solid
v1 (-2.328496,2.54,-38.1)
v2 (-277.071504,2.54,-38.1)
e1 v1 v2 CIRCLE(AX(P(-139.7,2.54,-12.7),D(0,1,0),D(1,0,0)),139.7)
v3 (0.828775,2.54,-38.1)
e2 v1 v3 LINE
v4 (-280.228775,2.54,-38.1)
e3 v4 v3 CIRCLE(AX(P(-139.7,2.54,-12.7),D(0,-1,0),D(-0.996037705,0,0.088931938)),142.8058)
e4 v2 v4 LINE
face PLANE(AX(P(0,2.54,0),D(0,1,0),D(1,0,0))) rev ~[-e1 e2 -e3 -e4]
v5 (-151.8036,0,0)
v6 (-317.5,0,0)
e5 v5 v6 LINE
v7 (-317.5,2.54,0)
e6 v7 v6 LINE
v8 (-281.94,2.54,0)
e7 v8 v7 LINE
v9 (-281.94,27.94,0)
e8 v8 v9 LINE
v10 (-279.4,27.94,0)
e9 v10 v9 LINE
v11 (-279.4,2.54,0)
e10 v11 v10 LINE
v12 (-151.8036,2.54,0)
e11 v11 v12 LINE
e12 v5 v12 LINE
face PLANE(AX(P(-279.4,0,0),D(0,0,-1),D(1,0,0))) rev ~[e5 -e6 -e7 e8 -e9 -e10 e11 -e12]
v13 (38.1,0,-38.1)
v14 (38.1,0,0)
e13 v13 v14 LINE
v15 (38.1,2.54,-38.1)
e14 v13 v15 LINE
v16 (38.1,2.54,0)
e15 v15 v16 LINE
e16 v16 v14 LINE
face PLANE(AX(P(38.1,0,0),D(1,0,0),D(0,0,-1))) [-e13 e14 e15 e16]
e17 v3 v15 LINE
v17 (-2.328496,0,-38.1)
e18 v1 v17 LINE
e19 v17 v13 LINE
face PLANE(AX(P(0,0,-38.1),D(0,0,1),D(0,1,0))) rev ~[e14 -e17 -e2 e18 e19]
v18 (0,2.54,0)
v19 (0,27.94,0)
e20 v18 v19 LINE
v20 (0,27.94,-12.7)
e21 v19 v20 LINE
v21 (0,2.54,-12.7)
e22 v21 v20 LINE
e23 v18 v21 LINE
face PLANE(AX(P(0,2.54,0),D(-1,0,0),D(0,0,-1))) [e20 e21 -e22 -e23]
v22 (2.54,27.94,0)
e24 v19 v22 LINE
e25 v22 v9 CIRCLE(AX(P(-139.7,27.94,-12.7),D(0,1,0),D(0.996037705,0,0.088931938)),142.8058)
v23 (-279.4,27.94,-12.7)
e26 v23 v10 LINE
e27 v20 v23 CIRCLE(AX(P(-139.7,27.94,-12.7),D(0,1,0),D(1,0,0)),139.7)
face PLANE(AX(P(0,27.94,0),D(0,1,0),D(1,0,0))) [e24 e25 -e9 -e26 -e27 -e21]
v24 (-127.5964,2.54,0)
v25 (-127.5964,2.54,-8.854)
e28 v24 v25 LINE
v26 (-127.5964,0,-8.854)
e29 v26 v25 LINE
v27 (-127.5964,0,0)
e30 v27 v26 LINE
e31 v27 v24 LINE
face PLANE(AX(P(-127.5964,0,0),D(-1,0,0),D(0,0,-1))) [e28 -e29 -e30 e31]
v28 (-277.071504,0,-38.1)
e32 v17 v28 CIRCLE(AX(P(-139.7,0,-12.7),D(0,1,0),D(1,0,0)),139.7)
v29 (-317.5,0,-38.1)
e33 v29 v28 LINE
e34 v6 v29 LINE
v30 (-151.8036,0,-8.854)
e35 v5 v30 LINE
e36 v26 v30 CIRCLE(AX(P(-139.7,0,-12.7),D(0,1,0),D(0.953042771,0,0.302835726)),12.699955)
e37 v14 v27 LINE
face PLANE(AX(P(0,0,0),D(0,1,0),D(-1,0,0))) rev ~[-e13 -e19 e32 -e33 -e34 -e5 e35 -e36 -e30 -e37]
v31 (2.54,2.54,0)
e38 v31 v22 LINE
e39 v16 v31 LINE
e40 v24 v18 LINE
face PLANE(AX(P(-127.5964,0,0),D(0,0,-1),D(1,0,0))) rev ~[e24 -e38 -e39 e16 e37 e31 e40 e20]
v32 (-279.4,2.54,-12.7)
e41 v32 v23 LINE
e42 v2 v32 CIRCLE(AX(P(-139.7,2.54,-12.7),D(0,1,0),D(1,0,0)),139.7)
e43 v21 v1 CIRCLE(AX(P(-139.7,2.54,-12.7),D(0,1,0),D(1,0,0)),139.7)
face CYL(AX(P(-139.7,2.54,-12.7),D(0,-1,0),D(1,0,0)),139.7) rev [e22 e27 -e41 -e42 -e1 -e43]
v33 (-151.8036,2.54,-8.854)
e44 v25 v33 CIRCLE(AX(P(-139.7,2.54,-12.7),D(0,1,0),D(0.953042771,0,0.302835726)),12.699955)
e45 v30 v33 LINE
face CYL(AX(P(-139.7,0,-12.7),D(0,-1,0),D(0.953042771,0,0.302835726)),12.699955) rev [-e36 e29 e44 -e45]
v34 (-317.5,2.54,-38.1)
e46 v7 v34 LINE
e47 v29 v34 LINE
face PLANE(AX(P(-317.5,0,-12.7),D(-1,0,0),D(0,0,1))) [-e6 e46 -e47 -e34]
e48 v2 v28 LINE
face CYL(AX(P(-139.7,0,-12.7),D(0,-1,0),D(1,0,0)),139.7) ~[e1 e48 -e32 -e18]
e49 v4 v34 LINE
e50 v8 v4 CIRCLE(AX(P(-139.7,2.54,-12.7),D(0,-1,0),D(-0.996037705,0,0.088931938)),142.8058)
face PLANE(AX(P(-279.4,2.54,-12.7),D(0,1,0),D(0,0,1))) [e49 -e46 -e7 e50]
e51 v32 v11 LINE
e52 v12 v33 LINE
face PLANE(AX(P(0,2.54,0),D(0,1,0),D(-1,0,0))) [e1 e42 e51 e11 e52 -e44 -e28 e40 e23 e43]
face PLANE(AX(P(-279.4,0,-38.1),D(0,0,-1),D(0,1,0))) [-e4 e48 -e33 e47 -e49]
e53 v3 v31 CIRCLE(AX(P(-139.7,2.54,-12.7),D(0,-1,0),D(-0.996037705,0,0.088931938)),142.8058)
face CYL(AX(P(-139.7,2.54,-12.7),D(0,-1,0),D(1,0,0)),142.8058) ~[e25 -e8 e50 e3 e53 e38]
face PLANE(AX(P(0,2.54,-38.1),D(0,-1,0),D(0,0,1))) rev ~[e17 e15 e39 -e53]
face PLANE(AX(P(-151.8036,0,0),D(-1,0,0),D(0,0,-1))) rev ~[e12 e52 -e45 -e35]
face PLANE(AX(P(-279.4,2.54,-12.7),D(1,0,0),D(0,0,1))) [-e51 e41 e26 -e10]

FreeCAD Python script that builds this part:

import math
import FreeCAD as App
import Part
import Sketcher
from FreeCAD import Vector
Q = App.Units.Quantity


def add_polygon(sketch, points):
    """Adds a closed chain of lines whose ends are joined by coincident constraints."""
    first, n = sketch.GeometryCount, len(points)
    for a, b in zip(points, points[1:] + points[:1]):
        sketch.addGeometry(Part.LineSegment(App.Vector(*a, 0), App.Vector(*b, 0)), False)
    for i in range(n):
        sketch.addConstraint(Sketcher.Constraint("Coincident", first + i, 2, first + (i + 1) % n, 1))

doc = App.newDocument("Part")
body = doc.addObject("PartDesign::Body", "Body")
body.AllowCompound = True

sketch1 = doc.addObject("Sketcher::SketchObject", "Sketch")
body.addObject(sketch1)
sketch1.AttachmentSupport = (doc.XZ_Plane, [""])
sketch1.MapMode = "FlatFace"
sketch1.addGeometry(Part.ArcOfCircle(Part.Circle(Vector(-139.7, -12.7, 0), Vector(0, 0, 1), 12.699955), math.radians(162.371997), math.radians(377.628003)), False)
sketch1.addGeometry(Part.LineSegment(Vector(-127.5964, -8.854, 0), Vector(-127.5964, 0, 0)), False)
sketch1.addGeometry(Part.LineSegment(Vector(-127.5964, 0, 0), Vector(0, 0, 0)), False)
sketch1.addGeometry(Part.LineSegment(Vector(0, 0, 0), Vector(0, -12.7, 0)), False)
sketch1.addGeometry(Part.ArcOfCircle(Part.Circle(Vector(-139.7, -12.7, 0), Vector(0, 0, 1), 139.7), math.radians(180), math.radians(360)), False)
sketch1.addGeometry(Part.LineSegment(Vector(-279.4, -12.7, 0), Vector(-279.4, 0, 0)), False)
sketch1.addGeometry(Part.LineSegment(Vector(-279.4, 0, 0), Vector(-151.8036, 0, 0)), False)
sketch1.addGeometry(Part.LineSegment(Vector(-151.8036, 0, 0), Vector(-151.8036, -8.854, 0)), False)
sketch1.addConstraint(Sketcher.Constraint("Coincident", 0, 2, 1, 1))
sketch1.addConstraint(Sketcher.Constraint("Coincident", 1, 2, 2, 1))
sketch1.addConstraint(Sketcher.Constraint("Coincident", 2, 2, 3, 1))
sketch1.addConstraint(Sketcher.Constraint("Tangent", 3, 2, 4, 2))
sketch1.addConstraint(Sketcher.Constraint("Tangent", 4, 1, 5, 1))
sketch1.addConstraint(Sketcher.Constraint("Coincident", 5, 2, 6, 1))
sketch1.addConstraint(Sketcher.Constraint("Coincident", 6, 2, 7, 1))
sketch1.addConstraint(Sketcher.Constraint("Coincident", 7, 2, 0, 1))
sketch1.addConstraint(Sketcher.Constraint("Vertical", 1))
sketch1.addConstraint(Sketcher.Constraint("Horizontal", 2))
sketch1.addConstraint(Sketcher.Constraint("Vertical", 3))
sketch1.addConstraint(Sketcher.Constraint("Vertical", 5))
sketch1.addConstraint(Sketcher.Constraint("Horizontal", 6))
sketch1.addConstraint(Sketcher.Constraint("Vertical", 7))
sketch1.addConstraint(Sketcher.Constraint("Coincident", 2, 2, -1, 1))
sketch1.addConstraint(Sketcher.Constraint("Coincident", 4, 3, 0, 3))
sketch1.addConstraint(Sketcher.Constraint("PointOnObject", 5, 2, -1))
sketch1.addConstraint(Sketcher.Constraint("Horizontal", 0, 2, 7, 2))
sketch1.addConstraint(Sketcher.Constraint("Radius", 4, Q("5.5 in")))
sketch1.addConstraint(Sketcher.Constraint("Radius", 0, Q("0.5 in")))
sketch1.addConstraint(Sketcher.Constraint("DistanceY", 3, 2, 3, 1, Q("0.5 in")))
sketch1.addConstraint(Sketcher.Constraint("DistanceX", 2, 1, 2, 2, 127.5964))
pad1 = doc.addObject("PartDesign::Pad", "Pad")
body.addObject(pad1)
pad1.Profile = sketch1
pad1.Length = Q("0.1 in")
pad1.Reversed = True

sketch2 = doc.addObject("Sketcher::SketchObject", "Sketch001")
body.addObject(sketch2)
sketch2.AttachmentSupport = (doc.XZ_Plane, [""])
sketch2.MapMode = "FlatFace"
sketch2.AttachmentOffset = App.Placement(Vector(0, 0, -0.1 * 25.4), App.Rotation())
sketch2.addGeometry(Part.ArcOfCircle(Part.Circle(Vector(-139.7, -12.7, 0), Vector(0, 0, 1), 139.7), math.radians(180), math.radians(360)), False)
sketch2.addGeometry(Part.LineSegment(Vector(0, -12.7, 0), Vector(0, 0, 0)), False)
sketch2.addGeometry(Part.LineSegment(Vector(0, 0, 0), Vector(2.54, 0, 0)), False)
sketch2.addGeometry(Part.ArcOfCircle(Part.Circle(Vector(-139.7, -12.7, 0), Vector(0, 0, 1), 142.8058), math.radians(174.897835), math.radians(365.102165)), False)
sketch2.addGeometry(Part.LineSegment(Vector(-281.94, 0, 0), Vector(-279.4, 0, 0)), False)
sketch2.addGeometry(Part.LineSegment(Vector(-279.4, 0, 0), Vector(-279.4, -12.7, 0)), False)
sketch2.addConstraint(Sketcher.Constraint("Tangent", 0, 2, 1, 1))
sketch2.addConstraint(Sketcher.Constraint("Coincident", 1, 2, 2, 1))
sketch2.addConstraint(Sketcher.Constraint("Coincident", 2, 2, 3, 2))
sketch2.addConstraint(Sketcher.Constraint("Coincident", 3, 1, 4, 1))
sketch2.addConstraint(Sketcher.Constraint("Coincident", 4, 2, 5, 1))
sketch2.addConstraint(Sketcher.Constraint("Tangent", 5, 2, 0, 1))
sketch2.addConstraint(Sketcher.Constraint("Vertical", 1))
sketch2.addConstraint(Sketcher.Constraint("Horizontal", 2))
sketch2.addConstraint(Sketcher.Constraint("Horizontal", 4))
sketch2.addConstraint(Sketcher.Constraint("Vertical", 5))
sketch2.addConstraint(Sketcher.Constraint("Coincident", 1, 2, -1, 1))
sketch2.addConstraint(Sketcher.Constraint("Coincident", 3, 3, 0, 3))
sketch2.addConstraint(Sketcher.Constraint("PointOnObject", 3, 1, -1))
sketch2.addConstraint(Sketcher.Constraint("DistanceX", 2, 1, 2, 2, Q("0.1 in")))
sketch2.addConstraint(Sketcher.Constraint("Radius", 0, Q("5.5 in")))
sketch2.addConstraint(Sketcher.Constraint("DistanceY", 1, 1, 1, 2, Q("0.5 in")))
pad2 = doc.addObject("PartDesign::Pad", "Pad001")
body.addObject(pad2)
pad2.Profile = sketch2
pad2.Length = Q("1 in")
pad2.Reversed = True

sketch3 = doc.addObject("Sketcher::SketchObject", "Sketch002")
body.addObject(sketch3)
sketch3.AttachmentSupport = (doc.YZ_Plane, [""])
sketch3.MapMode = "FlatFace"
sketch3.AttachmentOffset = App.Placement(Vector(0, 0, -11 * 25.4), App.Rotation())
add_polygon(sketch3, [(0, -38.1), (0, 0), (2.54, 0), (2.54, -38.1)])
sketch3.addConstraint(Sketcher.Constraint("Vertical", 0))
sketch3.addConstraint(Sketcher.Constraint("Horizontal", 1))
sketch3.addConstraint(Sketcher.Constraint("Vertical", 2))
sketch3.addConstraint(Sketcher.Constraint("Horizontal", 3))
sketch3.addConstraint(Sketcher.Constraint("Coincident", 0, 2, -1, 1))
sketch3.addConstraint(Sketcher.Constraint("DistanceY", 0, 1, 0, 2, Q("1.5 in")))
sketch3.addConstraint(Sketcher.Constraint("DistanceX", 1, 1, 1, 2, Q("0.1 in")))
pad3 = doc.addObject("PartDesign::Pad", "Pad002")
body.addObject(pad3)
pad3.Profile = sketch3
pad3.Length = Q("3 in")
pad3.Midplane = True

sketch4 = doc.addObject("Sketcher::SketchObject", "Sketch003")
body.addObject(sketch4)
sketch4.AttachmentSupport = (doc.YZ_Plane, [""])
sketch4.MapMode = "FlatFace"
add_polygon(sketch4, [(0, 0), (0, -38.1), (2.54, -38.1), (2.54, 0)])
sketch4.addConstraint(Sketcher.Constraint("Vertical", 0))
sketch4.addConstraint(Sketcher.Constraint("Horizontal", 1))
sketch4.addConstraint(Sketcher.Constraint("Vertical", 2))
sketch4.addConstraint(Sketcher.Constraint("Horizontal", 3))
sketch4.addConstraint(Sketcher.Constraint("Coincident", 3, 2, -1, 1))
sketch4.addConstraint(Sketcher.Constraint("DistanceX", 1, 1, 1, 2, Q("0.1 in")))
sketch4.addConstraint(Sketcher.Constraint("DistanceY", 0, 2, 0, 1, Q("1.5 in")))
pad4 = doc.addObject("PartDesign::Pad", "Pad003")
body.addObject(pad4)
pad4.Profile = sketch4
pad4.Length = Q("3 in")
pad4.Midplane = True

doc.recompute()
